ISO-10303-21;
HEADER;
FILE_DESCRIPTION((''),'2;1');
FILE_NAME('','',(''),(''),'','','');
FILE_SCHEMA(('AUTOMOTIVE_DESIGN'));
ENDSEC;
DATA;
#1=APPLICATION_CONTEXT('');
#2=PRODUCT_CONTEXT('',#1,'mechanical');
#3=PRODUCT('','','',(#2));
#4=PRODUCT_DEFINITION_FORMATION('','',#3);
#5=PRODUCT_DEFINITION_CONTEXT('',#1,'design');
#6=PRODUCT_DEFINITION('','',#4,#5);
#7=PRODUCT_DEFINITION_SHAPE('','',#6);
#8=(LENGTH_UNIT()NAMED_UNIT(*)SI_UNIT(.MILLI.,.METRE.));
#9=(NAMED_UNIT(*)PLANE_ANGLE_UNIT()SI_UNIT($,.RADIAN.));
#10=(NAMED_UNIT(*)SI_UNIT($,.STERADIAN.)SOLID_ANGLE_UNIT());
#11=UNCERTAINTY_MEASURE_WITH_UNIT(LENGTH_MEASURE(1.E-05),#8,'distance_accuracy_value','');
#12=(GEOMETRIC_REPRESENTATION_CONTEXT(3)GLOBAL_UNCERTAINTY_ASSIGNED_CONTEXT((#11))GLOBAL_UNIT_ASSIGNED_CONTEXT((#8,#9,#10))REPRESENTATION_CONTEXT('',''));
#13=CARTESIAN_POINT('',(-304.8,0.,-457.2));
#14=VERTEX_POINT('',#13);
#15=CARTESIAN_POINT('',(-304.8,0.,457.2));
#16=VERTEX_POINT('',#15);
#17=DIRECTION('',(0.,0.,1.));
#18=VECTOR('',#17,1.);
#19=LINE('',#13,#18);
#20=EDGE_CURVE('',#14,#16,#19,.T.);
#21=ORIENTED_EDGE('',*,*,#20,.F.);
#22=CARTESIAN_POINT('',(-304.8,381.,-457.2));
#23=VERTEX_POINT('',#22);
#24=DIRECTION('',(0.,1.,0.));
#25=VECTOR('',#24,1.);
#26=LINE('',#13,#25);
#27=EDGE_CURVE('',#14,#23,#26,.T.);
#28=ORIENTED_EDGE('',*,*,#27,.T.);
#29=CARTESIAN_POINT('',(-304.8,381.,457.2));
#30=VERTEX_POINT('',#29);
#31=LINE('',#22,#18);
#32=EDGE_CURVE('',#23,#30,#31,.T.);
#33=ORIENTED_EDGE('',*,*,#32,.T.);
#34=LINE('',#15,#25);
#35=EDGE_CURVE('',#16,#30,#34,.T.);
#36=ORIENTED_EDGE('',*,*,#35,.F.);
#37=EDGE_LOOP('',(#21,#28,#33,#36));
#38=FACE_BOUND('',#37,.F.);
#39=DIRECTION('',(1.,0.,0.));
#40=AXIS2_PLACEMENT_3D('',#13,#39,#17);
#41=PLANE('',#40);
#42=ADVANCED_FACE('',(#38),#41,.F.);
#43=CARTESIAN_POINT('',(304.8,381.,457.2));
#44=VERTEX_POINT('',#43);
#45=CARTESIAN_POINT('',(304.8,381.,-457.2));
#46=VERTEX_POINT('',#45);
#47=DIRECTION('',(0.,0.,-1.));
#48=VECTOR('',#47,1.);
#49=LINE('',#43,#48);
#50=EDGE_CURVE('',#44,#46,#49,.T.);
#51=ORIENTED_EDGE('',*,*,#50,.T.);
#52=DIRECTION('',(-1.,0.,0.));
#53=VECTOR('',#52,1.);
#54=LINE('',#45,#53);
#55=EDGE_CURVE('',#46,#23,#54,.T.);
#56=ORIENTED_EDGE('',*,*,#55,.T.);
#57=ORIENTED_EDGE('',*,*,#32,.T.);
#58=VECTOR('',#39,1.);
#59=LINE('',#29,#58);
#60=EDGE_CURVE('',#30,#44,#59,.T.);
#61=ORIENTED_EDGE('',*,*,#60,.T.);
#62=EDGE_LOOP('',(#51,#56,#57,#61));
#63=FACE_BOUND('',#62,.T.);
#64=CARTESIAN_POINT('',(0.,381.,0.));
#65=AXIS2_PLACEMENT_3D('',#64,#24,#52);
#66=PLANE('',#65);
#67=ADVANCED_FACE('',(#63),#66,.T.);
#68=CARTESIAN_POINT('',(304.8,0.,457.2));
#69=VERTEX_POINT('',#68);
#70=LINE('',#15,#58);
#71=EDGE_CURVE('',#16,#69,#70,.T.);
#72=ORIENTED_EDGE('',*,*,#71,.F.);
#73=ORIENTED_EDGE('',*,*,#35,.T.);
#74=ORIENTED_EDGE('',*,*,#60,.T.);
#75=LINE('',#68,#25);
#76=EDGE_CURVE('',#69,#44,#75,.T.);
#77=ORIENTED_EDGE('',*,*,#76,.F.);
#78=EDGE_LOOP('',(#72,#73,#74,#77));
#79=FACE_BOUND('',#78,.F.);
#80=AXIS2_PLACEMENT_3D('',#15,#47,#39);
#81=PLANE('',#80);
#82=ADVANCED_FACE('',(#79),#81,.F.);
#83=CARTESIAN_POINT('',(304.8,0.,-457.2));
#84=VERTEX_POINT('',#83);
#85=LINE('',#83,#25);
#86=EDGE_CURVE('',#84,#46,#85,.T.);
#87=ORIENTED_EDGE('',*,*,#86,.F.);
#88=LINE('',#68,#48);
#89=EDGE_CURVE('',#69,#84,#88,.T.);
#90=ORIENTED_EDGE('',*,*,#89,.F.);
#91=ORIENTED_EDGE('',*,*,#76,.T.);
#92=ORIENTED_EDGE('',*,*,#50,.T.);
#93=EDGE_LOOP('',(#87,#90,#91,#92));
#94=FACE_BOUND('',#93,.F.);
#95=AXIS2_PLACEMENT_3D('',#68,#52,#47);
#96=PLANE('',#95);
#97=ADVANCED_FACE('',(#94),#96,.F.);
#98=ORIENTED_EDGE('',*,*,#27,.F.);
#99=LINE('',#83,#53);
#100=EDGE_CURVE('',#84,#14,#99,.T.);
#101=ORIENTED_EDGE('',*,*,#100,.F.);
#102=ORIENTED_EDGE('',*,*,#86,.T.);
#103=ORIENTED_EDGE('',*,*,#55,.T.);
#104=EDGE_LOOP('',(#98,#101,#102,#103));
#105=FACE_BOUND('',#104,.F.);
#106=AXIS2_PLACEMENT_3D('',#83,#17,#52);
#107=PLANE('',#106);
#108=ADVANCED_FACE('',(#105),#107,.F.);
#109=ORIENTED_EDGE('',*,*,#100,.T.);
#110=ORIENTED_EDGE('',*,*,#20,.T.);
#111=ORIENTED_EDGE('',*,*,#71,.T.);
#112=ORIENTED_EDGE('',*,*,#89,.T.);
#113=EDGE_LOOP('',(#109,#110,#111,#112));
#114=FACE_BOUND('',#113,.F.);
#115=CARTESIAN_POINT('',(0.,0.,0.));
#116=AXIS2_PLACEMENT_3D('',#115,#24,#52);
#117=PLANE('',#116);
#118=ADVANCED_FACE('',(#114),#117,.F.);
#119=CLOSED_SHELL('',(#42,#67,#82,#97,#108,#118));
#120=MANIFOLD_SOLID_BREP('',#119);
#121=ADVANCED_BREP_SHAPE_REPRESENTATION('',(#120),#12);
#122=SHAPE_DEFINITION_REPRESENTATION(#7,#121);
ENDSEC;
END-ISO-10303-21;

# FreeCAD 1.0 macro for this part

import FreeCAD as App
import Part
import Sketcher

V = App.Vector
Q = App.Units.Quantity

doc = App.newDocument("Part")
body = doc.addObject("PartDesign::Body", "Body")

# Sketch on XZ plane
sketch1 = body.newObject("Sketcher::SketchObject", "Sketch")
sketch1.AttachmentSupport = (doc.getObject("XZ_Plane"), [""])
sketch1.MapMode = "FlatFace"
sketch1.addGeometry([
    Part.LineSegment(V(-305, -457, 0), V(-305, 457, 0)),
    Part.LineSegment(V(-305, 457, 0), V(305, 457, 0)),
    Part.LineSegment(V(305, 457, 0), V(305, -457, 0)),
    Part.LineSegment(V(305, -457, 0), V(-305, -457, 0)),
], False)
sketch1.addConstraint([
    Sketcher.Constraint("Coincident", 0, 2, 1, 1),
    Sketcher.Constraint("Coincident", 1, 2, 2, 1),
    Sketcher.Constraint("Coincident", 2, 2, 3, 1),
    Sketcher.Constraint("Coincident", 3, 2, 0, 1),
    Sketcher.Constraint("Vertical", 0),
    Sketcher.Constraint("Horizontal", 1),
    Sketcher.Constraint("Vertical", 2),
    Sketcher.Constraint("Horizontal", 3),
    Sketcher.Constraint("Symmetric", 0, 2, 2, 2, -1, 1),
    Sketcher.Constraint("DistanceX", 1, 1, 1, 2, Q("24 in")),
    Sketcher.Constraint("DistanceY", 0, 1, 0, 2, Q("36 in")),
])
pad1 = body.newObject("PartDesign::Pad", "Pad")
pad1.Profile = sketch1
pad1.Length = Q("15 in")
pad1.Reversed = True

doc.recompute()
